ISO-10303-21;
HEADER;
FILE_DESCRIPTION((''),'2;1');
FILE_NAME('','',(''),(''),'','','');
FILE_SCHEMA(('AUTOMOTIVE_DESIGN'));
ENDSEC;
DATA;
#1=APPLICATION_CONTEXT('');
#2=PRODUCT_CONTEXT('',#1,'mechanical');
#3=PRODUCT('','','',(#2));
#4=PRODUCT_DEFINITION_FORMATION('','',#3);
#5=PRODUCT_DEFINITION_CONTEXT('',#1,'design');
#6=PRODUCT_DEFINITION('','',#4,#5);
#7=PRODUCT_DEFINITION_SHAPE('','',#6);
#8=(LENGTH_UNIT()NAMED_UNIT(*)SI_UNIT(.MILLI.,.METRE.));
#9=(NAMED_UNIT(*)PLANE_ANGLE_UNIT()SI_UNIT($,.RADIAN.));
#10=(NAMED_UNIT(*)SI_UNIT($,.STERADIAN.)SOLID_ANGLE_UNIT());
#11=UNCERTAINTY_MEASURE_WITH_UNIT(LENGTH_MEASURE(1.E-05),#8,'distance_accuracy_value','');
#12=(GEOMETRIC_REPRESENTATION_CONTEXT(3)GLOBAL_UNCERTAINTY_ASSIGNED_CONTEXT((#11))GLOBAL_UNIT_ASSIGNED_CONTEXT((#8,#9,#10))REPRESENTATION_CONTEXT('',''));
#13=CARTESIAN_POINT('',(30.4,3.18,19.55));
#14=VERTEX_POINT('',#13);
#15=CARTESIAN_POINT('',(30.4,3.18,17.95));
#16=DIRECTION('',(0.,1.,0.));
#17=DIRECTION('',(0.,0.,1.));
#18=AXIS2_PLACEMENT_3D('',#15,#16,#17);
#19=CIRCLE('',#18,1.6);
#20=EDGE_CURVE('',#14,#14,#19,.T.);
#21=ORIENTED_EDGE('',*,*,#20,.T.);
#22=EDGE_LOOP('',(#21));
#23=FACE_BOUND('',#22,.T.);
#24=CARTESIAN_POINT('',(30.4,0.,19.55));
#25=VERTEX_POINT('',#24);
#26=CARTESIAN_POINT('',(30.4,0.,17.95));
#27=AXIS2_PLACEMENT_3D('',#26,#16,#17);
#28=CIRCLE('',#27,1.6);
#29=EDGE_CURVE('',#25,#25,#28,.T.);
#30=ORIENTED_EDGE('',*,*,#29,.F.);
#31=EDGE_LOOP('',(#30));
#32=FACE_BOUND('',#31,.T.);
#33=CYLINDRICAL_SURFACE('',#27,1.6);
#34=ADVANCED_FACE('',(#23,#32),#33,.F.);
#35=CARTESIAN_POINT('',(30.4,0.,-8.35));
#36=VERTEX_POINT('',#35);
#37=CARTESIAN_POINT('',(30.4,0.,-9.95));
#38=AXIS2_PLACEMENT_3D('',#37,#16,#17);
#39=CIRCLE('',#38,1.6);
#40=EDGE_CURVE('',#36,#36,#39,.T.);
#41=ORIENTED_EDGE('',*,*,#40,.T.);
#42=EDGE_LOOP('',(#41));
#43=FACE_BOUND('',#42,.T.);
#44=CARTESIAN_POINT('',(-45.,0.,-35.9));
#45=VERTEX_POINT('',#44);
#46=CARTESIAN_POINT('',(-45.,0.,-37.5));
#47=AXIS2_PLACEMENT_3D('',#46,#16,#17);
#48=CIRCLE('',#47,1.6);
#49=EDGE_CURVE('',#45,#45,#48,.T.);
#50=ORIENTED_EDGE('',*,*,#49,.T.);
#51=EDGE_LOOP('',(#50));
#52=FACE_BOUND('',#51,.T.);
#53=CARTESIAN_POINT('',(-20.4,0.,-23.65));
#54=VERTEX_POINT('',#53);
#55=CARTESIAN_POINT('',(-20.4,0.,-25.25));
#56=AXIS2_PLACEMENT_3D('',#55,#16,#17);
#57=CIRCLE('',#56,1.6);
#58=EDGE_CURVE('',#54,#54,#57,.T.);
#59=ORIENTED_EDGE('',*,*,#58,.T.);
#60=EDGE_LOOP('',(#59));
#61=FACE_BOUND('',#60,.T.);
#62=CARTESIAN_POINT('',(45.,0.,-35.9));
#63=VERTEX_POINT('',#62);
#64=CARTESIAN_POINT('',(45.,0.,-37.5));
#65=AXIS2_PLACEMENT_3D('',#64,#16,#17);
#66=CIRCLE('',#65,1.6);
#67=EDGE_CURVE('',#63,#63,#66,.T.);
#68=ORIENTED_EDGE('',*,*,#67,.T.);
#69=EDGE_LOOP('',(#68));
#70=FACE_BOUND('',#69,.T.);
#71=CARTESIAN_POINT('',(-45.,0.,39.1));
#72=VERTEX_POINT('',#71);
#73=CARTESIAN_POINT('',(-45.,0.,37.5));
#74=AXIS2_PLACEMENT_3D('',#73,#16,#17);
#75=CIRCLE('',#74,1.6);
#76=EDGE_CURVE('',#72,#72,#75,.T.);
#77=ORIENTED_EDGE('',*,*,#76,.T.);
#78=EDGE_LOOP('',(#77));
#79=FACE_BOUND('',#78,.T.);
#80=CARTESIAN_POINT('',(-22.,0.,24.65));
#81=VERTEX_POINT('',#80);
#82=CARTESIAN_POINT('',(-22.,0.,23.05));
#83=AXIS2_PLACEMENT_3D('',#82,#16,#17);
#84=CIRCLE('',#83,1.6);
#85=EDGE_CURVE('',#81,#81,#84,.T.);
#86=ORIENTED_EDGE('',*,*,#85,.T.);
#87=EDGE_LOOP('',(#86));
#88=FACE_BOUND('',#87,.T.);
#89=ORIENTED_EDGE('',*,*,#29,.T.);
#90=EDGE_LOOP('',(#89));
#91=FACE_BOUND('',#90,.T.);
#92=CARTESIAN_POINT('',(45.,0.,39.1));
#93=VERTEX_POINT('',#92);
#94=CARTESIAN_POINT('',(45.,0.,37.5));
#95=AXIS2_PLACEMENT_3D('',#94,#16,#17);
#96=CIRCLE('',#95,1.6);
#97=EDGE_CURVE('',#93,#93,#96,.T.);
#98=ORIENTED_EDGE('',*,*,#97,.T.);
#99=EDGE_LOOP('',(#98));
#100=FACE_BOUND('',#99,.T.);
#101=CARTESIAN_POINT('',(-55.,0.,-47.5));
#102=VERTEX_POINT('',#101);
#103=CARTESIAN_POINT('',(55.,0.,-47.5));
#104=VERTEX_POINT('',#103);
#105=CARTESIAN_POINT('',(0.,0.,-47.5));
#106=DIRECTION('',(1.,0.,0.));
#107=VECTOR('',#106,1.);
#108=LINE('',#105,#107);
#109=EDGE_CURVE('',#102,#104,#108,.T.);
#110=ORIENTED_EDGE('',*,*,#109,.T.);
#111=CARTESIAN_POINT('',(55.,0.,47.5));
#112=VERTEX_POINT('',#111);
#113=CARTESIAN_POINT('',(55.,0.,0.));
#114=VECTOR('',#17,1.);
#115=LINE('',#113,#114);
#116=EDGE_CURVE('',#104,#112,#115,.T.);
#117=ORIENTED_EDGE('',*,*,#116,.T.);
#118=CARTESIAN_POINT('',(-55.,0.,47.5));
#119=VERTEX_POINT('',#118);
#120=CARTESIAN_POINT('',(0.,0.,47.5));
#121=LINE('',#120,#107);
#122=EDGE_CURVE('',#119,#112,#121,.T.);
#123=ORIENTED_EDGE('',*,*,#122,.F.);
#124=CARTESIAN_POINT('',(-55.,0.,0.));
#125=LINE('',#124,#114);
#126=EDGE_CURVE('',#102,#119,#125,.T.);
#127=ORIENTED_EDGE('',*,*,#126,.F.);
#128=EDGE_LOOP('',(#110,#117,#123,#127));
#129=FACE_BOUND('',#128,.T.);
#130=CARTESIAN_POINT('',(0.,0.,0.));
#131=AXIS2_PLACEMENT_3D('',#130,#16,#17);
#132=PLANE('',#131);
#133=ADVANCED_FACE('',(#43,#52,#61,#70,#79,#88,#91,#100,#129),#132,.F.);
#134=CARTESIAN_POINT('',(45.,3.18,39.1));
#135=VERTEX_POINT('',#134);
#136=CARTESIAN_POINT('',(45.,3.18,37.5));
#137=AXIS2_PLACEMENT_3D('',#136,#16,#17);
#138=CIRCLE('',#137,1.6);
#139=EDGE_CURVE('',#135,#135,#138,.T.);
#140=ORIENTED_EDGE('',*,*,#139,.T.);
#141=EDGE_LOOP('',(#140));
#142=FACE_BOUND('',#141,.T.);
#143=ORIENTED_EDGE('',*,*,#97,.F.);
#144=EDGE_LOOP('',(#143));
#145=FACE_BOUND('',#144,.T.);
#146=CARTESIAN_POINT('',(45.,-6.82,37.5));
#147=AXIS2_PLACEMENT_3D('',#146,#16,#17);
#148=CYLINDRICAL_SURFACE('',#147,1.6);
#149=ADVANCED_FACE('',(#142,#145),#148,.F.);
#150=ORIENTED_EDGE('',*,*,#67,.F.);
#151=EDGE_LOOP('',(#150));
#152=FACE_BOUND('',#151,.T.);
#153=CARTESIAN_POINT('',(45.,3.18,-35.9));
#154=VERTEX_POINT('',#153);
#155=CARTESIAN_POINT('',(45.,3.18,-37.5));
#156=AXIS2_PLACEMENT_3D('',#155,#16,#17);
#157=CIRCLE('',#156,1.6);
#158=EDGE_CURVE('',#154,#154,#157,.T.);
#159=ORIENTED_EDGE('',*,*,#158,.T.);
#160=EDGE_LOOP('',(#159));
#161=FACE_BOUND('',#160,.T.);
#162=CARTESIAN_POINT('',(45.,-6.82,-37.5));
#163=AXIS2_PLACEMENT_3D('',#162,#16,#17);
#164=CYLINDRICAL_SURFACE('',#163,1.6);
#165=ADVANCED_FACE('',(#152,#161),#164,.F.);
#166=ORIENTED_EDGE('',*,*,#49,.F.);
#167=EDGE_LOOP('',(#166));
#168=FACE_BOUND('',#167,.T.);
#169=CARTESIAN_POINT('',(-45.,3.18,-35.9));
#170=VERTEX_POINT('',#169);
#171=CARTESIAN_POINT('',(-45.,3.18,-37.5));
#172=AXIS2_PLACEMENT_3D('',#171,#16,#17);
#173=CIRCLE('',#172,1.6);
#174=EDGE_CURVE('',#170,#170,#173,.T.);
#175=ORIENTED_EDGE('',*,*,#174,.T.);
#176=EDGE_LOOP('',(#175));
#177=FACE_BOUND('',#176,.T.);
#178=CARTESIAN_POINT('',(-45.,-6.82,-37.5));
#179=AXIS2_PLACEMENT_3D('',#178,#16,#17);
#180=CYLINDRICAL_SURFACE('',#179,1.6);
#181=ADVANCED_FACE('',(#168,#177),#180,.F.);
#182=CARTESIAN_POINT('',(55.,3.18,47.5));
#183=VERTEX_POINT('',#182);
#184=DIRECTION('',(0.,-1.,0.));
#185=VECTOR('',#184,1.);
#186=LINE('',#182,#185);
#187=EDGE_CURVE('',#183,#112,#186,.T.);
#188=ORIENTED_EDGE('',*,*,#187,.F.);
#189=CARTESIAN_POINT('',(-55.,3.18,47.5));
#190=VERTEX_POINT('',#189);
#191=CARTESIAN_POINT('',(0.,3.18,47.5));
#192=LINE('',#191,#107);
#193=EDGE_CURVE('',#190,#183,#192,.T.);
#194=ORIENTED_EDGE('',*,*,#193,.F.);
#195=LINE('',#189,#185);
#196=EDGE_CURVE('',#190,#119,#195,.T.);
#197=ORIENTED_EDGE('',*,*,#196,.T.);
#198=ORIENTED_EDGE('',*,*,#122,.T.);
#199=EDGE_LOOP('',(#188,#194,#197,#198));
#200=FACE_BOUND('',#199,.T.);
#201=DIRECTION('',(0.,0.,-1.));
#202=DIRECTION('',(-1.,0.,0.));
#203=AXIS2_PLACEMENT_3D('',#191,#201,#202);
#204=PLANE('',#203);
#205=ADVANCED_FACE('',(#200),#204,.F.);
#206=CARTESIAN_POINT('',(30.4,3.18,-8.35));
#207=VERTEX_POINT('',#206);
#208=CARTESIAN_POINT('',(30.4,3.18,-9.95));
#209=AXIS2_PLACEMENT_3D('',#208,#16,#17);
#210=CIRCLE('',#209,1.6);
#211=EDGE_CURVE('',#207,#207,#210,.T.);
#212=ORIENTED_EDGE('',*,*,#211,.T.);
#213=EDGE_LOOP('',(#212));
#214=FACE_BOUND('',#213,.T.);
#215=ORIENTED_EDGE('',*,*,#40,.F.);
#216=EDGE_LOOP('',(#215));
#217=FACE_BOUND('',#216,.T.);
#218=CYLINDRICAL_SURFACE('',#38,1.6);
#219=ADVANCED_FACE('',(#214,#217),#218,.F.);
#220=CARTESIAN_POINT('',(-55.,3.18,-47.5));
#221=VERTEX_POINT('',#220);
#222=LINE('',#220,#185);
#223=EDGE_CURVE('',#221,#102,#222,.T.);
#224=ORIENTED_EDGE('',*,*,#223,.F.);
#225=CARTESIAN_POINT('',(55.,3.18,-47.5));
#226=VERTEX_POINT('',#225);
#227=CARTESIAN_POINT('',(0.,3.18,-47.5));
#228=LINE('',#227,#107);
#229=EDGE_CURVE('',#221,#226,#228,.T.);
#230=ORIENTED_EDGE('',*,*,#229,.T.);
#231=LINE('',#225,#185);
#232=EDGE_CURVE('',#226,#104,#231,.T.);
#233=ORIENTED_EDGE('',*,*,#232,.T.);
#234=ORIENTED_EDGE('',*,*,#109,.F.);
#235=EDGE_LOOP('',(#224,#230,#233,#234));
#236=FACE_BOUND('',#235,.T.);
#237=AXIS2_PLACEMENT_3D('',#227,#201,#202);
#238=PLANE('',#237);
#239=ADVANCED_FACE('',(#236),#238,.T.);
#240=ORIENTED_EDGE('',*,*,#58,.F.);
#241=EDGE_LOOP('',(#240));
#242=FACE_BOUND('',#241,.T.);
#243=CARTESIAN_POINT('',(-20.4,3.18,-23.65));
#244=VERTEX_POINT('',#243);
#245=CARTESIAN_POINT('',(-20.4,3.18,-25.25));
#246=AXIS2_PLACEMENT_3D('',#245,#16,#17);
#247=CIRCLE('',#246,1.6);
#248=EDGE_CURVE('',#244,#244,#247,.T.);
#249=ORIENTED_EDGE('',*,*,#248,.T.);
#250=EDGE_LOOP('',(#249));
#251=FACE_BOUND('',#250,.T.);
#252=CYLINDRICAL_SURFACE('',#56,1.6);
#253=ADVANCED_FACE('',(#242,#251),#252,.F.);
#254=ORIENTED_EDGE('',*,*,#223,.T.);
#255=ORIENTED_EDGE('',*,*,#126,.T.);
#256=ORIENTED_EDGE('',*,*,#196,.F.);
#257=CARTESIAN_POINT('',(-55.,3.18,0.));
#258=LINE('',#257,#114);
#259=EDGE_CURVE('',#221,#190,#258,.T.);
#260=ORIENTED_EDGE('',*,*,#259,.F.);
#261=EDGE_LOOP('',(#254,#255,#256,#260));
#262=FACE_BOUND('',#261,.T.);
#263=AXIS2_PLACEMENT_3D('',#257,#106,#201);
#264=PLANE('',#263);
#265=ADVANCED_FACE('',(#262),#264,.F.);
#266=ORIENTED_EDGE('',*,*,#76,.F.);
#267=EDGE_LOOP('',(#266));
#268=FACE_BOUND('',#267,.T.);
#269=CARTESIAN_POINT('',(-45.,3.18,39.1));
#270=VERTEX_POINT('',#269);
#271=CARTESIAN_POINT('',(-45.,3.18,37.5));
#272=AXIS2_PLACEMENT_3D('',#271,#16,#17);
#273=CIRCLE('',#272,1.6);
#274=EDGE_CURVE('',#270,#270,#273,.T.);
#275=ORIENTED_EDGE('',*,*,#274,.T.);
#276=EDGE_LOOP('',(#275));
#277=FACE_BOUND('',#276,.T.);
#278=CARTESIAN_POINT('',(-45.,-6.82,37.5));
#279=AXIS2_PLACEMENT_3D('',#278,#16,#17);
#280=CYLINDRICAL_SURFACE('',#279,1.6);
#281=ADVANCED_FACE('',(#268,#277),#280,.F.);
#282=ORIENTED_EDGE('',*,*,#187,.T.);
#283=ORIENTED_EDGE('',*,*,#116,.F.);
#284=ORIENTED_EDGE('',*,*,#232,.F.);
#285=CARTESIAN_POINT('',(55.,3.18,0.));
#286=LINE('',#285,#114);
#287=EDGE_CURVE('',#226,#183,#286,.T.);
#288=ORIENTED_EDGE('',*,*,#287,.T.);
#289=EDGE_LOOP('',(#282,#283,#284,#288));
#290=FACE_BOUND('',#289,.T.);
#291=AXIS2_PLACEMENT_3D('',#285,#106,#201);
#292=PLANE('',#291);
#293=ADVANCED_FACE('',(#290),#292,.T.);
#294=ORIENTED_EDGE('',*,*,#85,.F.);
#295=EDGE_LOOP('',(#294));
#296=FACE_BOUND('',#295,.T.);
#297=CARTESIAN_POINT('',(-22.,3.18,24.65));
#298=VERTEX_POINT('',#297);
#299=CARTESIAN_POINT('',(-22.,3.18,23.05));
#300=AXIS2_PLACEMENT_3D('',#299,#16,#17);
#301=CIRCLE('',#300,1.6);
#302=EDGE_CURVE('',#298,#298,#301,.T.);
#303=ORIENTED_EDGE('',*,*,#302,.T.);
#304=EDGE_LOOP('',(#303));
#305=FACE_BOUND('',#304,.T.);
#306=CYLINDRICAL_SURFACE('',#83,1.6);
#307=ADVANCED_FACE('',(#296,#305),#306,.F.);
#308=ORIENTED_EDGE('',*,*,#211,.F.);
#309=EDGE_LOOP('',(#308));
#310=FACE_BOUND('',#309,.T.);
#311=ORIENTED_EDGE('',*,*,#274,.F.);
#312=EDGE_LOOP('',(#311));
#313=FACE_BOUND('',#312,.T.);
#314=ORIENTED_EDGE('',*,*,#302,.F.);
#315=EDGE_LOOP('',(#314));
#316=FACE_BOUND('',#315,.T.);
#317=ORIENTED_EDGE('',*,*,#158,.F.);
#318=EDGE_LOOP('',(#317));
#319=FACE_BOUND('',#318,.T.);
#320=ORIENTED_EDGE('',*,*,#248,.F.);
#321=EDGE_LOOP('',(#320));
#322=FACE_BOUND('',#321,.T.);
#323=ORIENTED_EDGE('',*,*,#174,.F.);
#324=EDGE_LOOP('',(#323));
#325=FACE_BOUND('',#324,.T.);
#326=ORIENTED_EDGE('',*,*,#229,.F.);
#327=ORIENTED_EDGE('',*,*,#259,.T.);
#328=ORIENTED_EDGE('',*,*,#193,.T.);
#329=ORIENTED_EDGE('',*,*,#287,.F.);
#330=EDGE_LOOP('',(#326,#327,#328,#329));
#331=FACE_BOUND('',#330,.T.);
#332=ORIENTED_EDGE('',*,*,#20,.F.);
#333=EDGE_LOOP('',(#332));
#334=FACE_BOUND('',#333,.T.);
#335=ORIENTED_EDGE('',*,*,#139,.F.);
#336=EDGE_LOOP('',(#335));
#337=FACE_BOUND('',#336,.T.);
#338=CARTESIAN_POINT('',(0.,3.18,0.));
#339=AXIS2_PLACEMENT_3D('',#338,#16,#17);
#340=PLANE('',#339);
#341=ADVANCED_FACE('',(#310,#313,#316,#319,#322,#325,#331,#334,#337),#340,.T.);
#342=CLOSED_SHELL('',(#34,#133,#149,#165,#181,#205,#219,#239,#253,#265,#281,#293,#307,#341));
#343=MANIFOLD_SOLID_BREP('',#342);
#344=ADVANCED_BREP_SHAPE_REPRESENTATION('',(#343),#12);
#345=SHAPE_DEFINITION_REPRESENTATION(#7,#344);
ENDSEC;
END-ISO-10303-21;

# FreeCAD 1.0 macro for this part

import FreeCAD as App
import Part
import Sketcher
from FreeCAD import Vector
Q = App.Units.Quantity

doc = App.newDocument("Part")
body = doc.addObject("PartDesign::Body", "Body")

# Sketch on XZ plane
sketch1 = body.newObject("Sketcher::SketchObject", "Sketch")
sketch1.AttachmentSupport = (doc.getObject("XZ_Plane"), [""])
sketch1.MapMode = "FlatFace"
sketch1.addGeometry(Part.LineSegment(Vector(-55, -48, 0), Vector(-55, 48, 0)), False)
sketch1.addGeometry(Part.LineSegment(Vector(-55, 48, 0), Vector(55, 48, 0)), False)
sketch1.addGeometry(Part.LineSegment(Vector(55, 48, 0), Vector(55, -48, 0)), False)
sketch1.addGeometry(Part.LineSegment(Vector(55, -48, 0), Vector(-55, -48, 0)), False)
sketch1.addConstraint(Sketcher.Constraint("Coincident", 0, 2, 1, 1))
sketch1.addConstraint(Sketcher.Constraint("Coincident", 1, 2, 2, 1))
sketch1.addConstraint(Sketcher.Constraint("Coincident", 2, 2, 3, 1))
sketch1.addConstraint(Sketcher.Constraint("Coincident", 3, 2, 0, 1))
sketch1.addConstraint(Sketcher.Constraint("Vertical", 0))
sketch1.addConstraint(Sketcher.Constraint("Horizontal", 1))
sketch1.addConstraint(Sketcher.Constraint("Vertical", 2))
sketch1.addConstraint(Sketcher.Constraint("Horizontal", 3))
sketch1.addConstraint(Sketcher.Constraint("Symmetric", 0, 2, 2, 2, -1, 1))
sketch1.addConstraint(Sketcher.Constraint("DistanceX", 1, 1, 1, 2, Q("110 mm")))
sketch1.addConstraint(Sketcher.Constraint("DistanceY", 0, 1, 0, 2, Q("95 mm")))
pad1 = body.newObject("PartDesign::Pad", "Pad")
pad1.Profile = sketch1
pad1.Length = 3.18
pad1.Reversed = True

# Sketch on XZ plane
sketch2 = body.newObject("Sketcher::SketchObject", "Sketch001")
sketch2.AttachmentSupport = (doc.getObject("XZ_Plane"), [""])
sketch2.MapMode = "FlatFace"
sketch2.AttachmentOffset = App.Placement(Vector(0, 0, -3.18), App.Rotation())
sketch2.addGeometry(Part.Circle(Vector(-20.4, -25.2, 0), Vector(0, 0, 1), 1.6), False)
sketch2.addGeometry(Part.Circle(Vector(-22, 23.1, 0), Vector(0, 0, 1), 1.6), False)
sketch2.addGeometry(Part.Circle(Vector(30.4, -9.9, 0), Vector(0, 0, 1), 1.6), False)
sketch2.addGeometry(Part.Circle(Vector(30.4, 17.9, 0), Vector(0, 0, 1), 1.6), False)
sketch2.addConstraint(Sketcher.Constraint("Equal", 0, 1))
sketch2.addConstraint(Sketcher.Constraint("Equal", 1, 2))
sketch2.addConstraint(Sketcher.Constraint("Equal", 2, 3))
sketch2.addConstraint(Sketcher.Constraint("Vertical", 2, 3, 3, 3))
sketch2.addConstraint(Sketcher.Constraint("Diameter", 0, Q("3.2 mm")))
sketch2.addConstraint(Sketcher.Constraint("DistanceX", 1, 3, -1, 1, Q("22 mm")))
sketch2.addConstraint(Sketcher.Constraint("DistanceY", 2, 3, 1, 3, Q("33 mm")))
sketch2.addConstraint(Sketcher.Constraint("DistanceX", 0, 3, -1, 1, Q("20.4 mm")))
sketch2.addConstraint(Sketcher.Constraint("DistanceX", -1, 1, 2, 3, Q("30.4 mm")))
sketch2.addConstraint(Sketcher.Constraint("DistanceY", 0, 3, 1, 3, Q("48.3 mm")))
sketch2.addConstraint(Sketcher.Constraint("DistanceY", 2, 3, 3, 3, Q("27.9 mm")))
sketch2.addConstraint(Sketcher.Constraint("DistanceY", 0, 3, -1, 1, Q("25.25 mm")))
pocket1 = body.newObject("PartDesign::Pocket", "Pocket")
pocket1.Profile = sketch2
pocket1.Length = 3.18
pocket1.Reversed = True

# Sketch on XZ plane
sketch3 = body.newObject("Sketcher::SketchObject", "Sketch002")
sketch3.AttachmentSupport = (doc.getObject("XZ_Plane"), [""])
sketch3.MapMode = "FlatFace"
sketch3.AttachmentOffset = App.Placement(Vector(0, 0, -3.18), App.Rotation())
sketch3.addGeometry(Part.Circle(Vector(45, -37.5, 0), Vector(0, 0, 1), 1.6), False)
sketch3.addGeometry(Part.Circle(Vector(45, 37.5, 0), Vector(0, 0, 1), 1.6), False)
sketch3.addGeometry(Part.Circle(Vector(-45, -37.5, 0), Vector(0, 0, 1), 1.6), False)
sketch3.addGeometry(Part.Circle(Vector(-45, 37.5, 0), Vector(0, 0, 1), 1.6), False)
sketch3.addConstraint(Sketcher.Constraint("Equal", 0, 1))
sketch3.addConstraint(Sketcher.Constraint("Equal", 1, 2))
sketch3.addConstraint(Sketcher.Constraint("Equal", 2, 3))
sketch3.addConstraint(Sketcher.Constraint("Symmetric", 1, 3, 2, 3, -1, 1))
sketch3.addConstraint(Sketcher.Constraint("Symmetric", 0, 3, 3, 3, -1, 1))
sketch3.addConstraint(Sketcher.Constraint("Symmetric", 0, 3, 2, 3, -2))
sketch3.addConstraint(Sketcher.Constraint("Diameter", 0, Q("3.2 mm")))
sketch3.addConstraint(Sketcher.Constraint("DistanceX", -1, 1, 0, 3, Q("45 mm")))
sketch3.addConstraint(Sketcher.Constraint("DistanceY", 0, 3, 1, 3, Q("75 mm")))
pocket2 = body.newObject("PartDesign::Pocket", "Pocket001")
pocket2.Profile = sketch3
pocket2.Length = 10
pocket2.Reversed = True

doc.recompute()
